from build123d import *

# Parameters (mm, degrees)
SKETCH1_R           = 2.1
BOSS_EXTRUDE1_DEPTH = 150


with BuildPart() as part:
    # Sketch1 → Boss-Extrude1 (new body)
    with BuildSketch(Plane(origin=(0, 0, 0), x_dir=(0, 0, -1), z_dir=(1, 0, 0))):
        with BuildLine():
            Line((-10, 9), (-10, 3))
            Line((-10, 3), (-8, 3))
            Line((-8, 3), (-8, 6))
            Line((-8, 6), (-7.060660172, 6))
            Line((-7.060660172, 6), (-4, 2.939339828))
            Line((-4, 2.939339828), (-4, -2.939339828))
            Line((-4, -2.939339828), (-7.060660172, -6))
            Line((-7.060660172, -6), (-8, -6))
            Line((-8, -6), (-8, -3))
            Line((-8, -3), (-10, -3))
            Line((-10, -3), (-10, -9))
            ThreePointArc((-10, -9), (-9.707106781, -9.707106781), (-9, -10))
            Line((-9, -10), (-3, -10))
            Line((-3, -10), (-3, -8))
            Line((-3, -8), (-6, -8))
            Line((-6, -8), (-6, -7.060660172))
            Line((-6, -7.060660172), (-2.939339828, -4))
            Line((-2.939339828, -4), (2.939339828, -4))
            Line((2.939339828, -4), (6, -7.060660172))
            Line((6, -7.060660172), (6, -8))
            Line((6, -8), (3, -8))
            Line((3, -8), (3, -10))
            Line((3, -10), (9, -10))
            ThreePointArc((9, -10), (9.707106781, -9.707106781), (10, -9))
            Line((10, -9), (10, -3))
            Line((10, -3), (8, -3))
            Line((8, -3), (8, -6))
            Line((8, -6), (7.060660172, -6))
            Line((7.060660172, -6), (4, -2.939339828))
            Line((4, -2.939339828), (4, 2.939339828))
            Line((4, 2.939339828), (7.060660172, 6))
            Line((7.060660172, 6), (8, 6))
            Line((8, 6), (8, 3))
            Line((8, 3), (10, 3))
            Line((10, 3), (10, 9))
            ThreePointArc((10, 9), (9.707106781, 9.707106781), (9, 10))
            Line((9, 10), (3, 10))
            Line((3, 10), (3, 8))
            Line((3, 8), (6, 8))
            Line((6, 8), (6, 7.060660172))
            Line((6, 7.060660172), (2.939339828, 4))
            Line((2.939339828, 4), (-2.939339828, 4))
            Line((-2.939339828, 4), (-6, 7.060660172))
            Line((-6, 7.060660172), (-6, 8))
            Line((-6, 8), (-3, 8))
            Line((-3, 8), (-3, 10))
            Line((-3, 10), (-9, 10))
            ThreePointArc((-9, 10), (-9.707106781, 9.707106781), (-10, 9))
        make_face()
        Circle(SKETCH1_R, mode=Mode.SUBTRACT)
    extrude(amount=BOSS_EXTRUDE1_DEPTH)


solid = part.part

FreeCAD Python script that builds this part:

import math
import FreeCAD as App
import Part
import Sketcher

doc = App.newDocument("Part")
body = doc.addObject("PartDesign::Body", "Body")

# Sketch on YZ plane
sketch1 = doc.addObject("Sketcher::SketchObject", "Sketch")
body.addObject(sketch1)
sketch1.AttachmentSupport = (doc.YZ_Plane, [""])
sketch1.MapMode = "FlatFace"
sketch1.addGeometry([
    Part.LineSegment(App.Vector(9, 10, 0), App.Vector(3, 10, 0)),  # 0
    Part.LineSegment(App.Vector(3, 10, 0), App.Vector(3, 8, 0)),  # 1
    Part.LineSegment(App.Vector(3, 8, 0), App.Vector(6, 8, 0)),  # 2
    Part.LineSegment(App.Vector(6, 8, 0), App.Vector(6, 7.1, 0)),  # 3
    Part.LineSegment(App.Vector(6, 7.1, 0), App.Vector(2.9, 4, 0)),  # 4
    Part.LineSegment(App.Vector(2.9, 4, 0), App.Vector(-2.9, 4, 0)),  # 5
    Part.LineSegment(App.Vector(-2.9, 4, 0), App.Vector(-6, 7.1, 0)),  # 6
    Part.LineSegment(App.Vector(-6, 7.1, 0), App.Vector(-6, 8, 0)),  # 7
    Part.LineSegment(App.Vector(-6, 8, 0), App.Vector(-3, 8, 0)),  # 8
    Part.LineSegment(App.Vector(-3, 8, 0), App.Vector(-3, 10, 0)),  # 9
    Part.LineSegment(App.Vector(-3, 10, 0), App.Vector(-9, 10, 0)),  # 10
    Part.ArcOfCircle(Part.Circle(App.Vector(-9, 9, 0), App.Vector(0, 0, 1), 1), math.radians(90), math.radians(180)),  # 11
    Part.LineSegment(App.Vector(-10, 9, 0), App.Vector(-10, 3, 0)),  # 12
    Part.LineSegment(App.Vector(-10, 3, 0), App.Vector(-8, 3, 0)),  # 13
    Part.LineSegment(App.Vector(-8, 3, 0), App.Vector(-8, 6, 0)),  # 14
    Part.LineSegment(App.Vector(-8, 6, 0), App.Vector(-7.1, 6, 0)),  # 15
    Part.LineSegment(App.Vector(-7.1, 6, 0), App.Vector(-4, 2.9, 0)),  # 16
    Part.LineSegment(App.Vector(-4, 2.9, 0), App.Vector(-4, -2.9, 0)),  # 17
    Part.LineSegment(App.Vector(-4, -2.9, 0), App.Vector(-7.1, -6, 0)),  # 18
    Part.LineSegment(App.Vector(-7.1, -6, 0), App.Vector(-8, -6, 0)),  # 19
    Part.LineSegment(App.Vector(-8, -6, 0), App.Vector(-8, -3, 0)),  # 20
    Part.LineSegment(App.Vector(-8, -3, 0), App.Vector(-10, -3, 0)),  # 21
    Part.LineSegment(App.Vector(-10, -3, 0), App.Vector(-10, -9, 0)),  # 22
    Part.ArcOfCircle(Part.Circle(App.Vector(-9, -9, 0), App.Vector(0, 0, 1), 1), math.radians(-180), math.radians(-90)),  # 23
    Part.LineSegment(App.Vector(-9, -10, 0), App.Vector(-3, -10, 0)),  # 24
    Part.LineSegment(App.Vector(-3, -10, 0), App.Vector(-3, -8, 0)),  # 25
    Part.LineSegment(App.Vector(-3, -8, 0), App.Vector(-6, -8, 0)),  # 26
    Part.LineSegment(App.Vector(-6, -8, 0), App.Vector(-6, -7.1, 0)),  # 27
    Part.LineSegment(App.Vector(-6, -7.1, 0), App.Vector(-2.9, -4, 0)),  # 28
    Part.LineSegment(App.Vector(-2.9, -4, 0), App.Vector(2.9, -4, 0)),  # 29
    Part.LineSegment(App.Vector(2.9, -4, 0), App.Vector(6, -7.1, 0)),  # 30
    Part.LineSegment(App.Vector(6, -7.1, 0), App.Vector(6, -8, 0)),  # 31
    Part.LineSegment(App.Vector(6, -8, 0), App.Vector(3, -8, 0)),  # 32
    Part.LineSegment(App.Vector(3, -8, 0), App.Vector(3, -10, 0)),  # 33
    Part.LineSegment(App.Vector(3, -10, 0), App.Vector(9, -10, 0)),  # 34
    Part.ArcOfCircle(Part.Circle(App.Vector(9, -9, 0), App.Vector(0, 0, 1), 1), math.radians(-90), math.radians(0)),  # 35
    Part.LineSegment(App.Vector(10, -9, 0), App.Vector(10, -3, 0)),  # 36
    Part.LineSegment(App.Vector(10, -3, 0), App.Vector(8, -3, 0)),  # 37
    Part.LineSegment(App.Vector(8, -3, 0), App.Vector(8, -6, 0)),  # 38
    Part.LineSegment(App.Vector(8, -6, 0), App.Vector(7.1, -6, 0)),  # 39
    Part.LineSegment(App.Vector(7.1, -6, 0), App.Vector(4, -2.9, 0)),  # 40
    Part.LineSegment(App.Vector(4, -2.9, 0), App.Vector(4, 2.9, 0)),  # 41
    Part.LineSegment(App.Vector(4, 2.9, 0), App.Vector(7.1, 6, 0)),  # 42
    Part.LineSegment(App.Vector(7.1, 6, 0), App.Vector(8, 6, 0)),  # 43
    Part.LineSegment(App.Vector(8, 6, 0), App.Vector(8, 3, 0)),  # 44
    Part.LineSegment(App.Vector(8, 3, 0), App.Vector(10, 3, 0)),  # 45
    Part.LineSegment(App.Vector(10, 3, 0), App.Vector(10, 9, 0)),  # 46
    Part.ArcOfCircle(Part.Circle(App.Vector(9, 9, 0), App.Vector(0, 0, 1), 1), math.radians(0), math.radians(90)),  # 47
    Part.Circle(App.Vector(0, 0, 0), App.Vector(0, 0, 1), 2.1),  # 48
], False)
sketch1.addConstraint([
    Sketcher.Constraint("Coincident", 0, 2, 1, 1),
    Sketcher.Constraint("Coincident", 1, 2, 2, 1),
    Sketcher.Constraint("Coincident", 2, 2, 3, 1),
    Sketcher.Constraint("Coincident", 3, 2, 4, 1),
    Sketcher.Constraint("Coincident", 4, 2, 5, 1),
    Sketcher.Constraint("Coincident", 5, 2, 6, 1),
    Sketcher.Constraint("Coincident", 6, 2, 7, 1),
    Sketcher.Constraint("Coincident", 7, 2, 8, 1),
    Sketcher.Constraint("Coincident", 8, 2, 9, 1),
    Sketcher.Constraint("Coincident", 9, 2, 10, 1),
    Sketcher.Constraint("Tangent", 10, 2, 11, 1),
    Sketcher.Constraint("Tangent", 11, 2, 12, 1),
    Sketcher.Constraint("Coincident", 12, 2, 13, 1),
    Sketcher.Constraint("Coincident", 13, 2, 14, 1),
    Sketcher.Constraint("Coincident", 14, 2, 15, 1),
    Sketcher.Constraint("Coincident", 15, 2, 16, 1),
    Sketcher.Constraint("Coincident", 16, 2, 17, 1),
    Sketcher.Constraint("Coincident", 17, 2, 18, 1),
    Sketcher.Constraint("Coincident", 18, 2, 19, 1),
    Sketcher.Constraint("Coincident", 19, 2, 20, 1),
    Sketcher.Constraint("Coincident", 20, 2, 21, 1),
    Sketcher.Constraint("Coincident", 21, 2, 22, 1),
    Sketcher.Constraint("Tangent", 22, 2, 23, 1),
    Sketcher.Constraint("Tangent", 23, 2, 24, 1),
    Sketcher.Constraint("Coincident", 24, 2, 25, 1),
    Sketcher.Constraint("Coincident", 25, 2, 26, 1),
    Sketcher.Constraint("Coincident", 26, 2, 27, 1),
    Sketcher.Constraint("Coincident", 27, 2, 28, 1),
    Sketcher.Constraint("Coincident", 28, 2, 29, 1),
    Sketcher.Constraint("Coincident", 29, 2, 30, 1),
    Sketcher.Constraint("Coincident", 30, 2, 31, 1),
    Sketcher.Constraint("Coincident", 31, 2, 32, 1),
    Sketcher.Constraint("Coincident", 32, 2, 33, 1),
    Sketcher.Constraint("Coincident", 33, 2, 34, 1),
    Sketcher.Constraint("Tangent", 34, 2, 35, 1),
    Sketcher.Constraint("Tangent", 35, 2, 36, 1),
    Sketcher.Constraint("Coincident", 36, 2, 37, 1),
    Sketcher.Constraint("Coincident", 37, 2, 38, 1),
    Sketcher.Constraint("Coincident", 38, 2, 39, 1),
    Sketcher.Constraint("Coincident", 39, 2, 40, 1),
    Sketcher.Constraint("Coincident", 40, 2, 41, 1),
    Sketcher.Constraint("Coincident", 41, 2, 42, 1),
    Sketcher.Constraint("Coincident", 42, 2, 43, 1),
    Sketcher.Constraint("Coincident", 43, 2, 44, 1),
    Sketcher.Constraint("Coincident", 44, 2, 45, 1),
    Sketcher.Constraint("Coincident", 45, 2, 46, 1),
    Sketcher.Constraint("Tangent", 46, 2, 47, 1),
    Sketcher.Constraint("Tangent", 47, 2, 0, 1),
    Sketcher.Constraint("Horizontal", 0),
    Sketcher.Constraint("Vertical", 1),
    Sketcher.Constraint("Horizontal", 2),
    Sketcher.Constraint("Vertical", 3),
    Sketcher.Constraint("Horizontal", 5),
    Sketcher.Constraint("Vertical", 7),
    Sketcher.Constraint("Horizontal", 8),
    Sketcher.Constraint("Vertical", 9),
    Sketcher.Constraint("Horizontal", 10),
    Sketcher.Constraint("Vertical", 12),
    Sketcher.Constraint("Horizontal", 13),
    Sketcher.Constraint("Vertical", 14),
    Sketcher.Constraint("Horizontal", 15),
    Sketcher.Constraint("Vertical", 17),
    Sketcher.Constraint("Horizontal", 19),
    Sketcher.Constraint("Vertical", 20),
    Sketcher.Constraint("Horizontal", 21),
    Sketcher.Constraint("Vertical", 22),
    Sketcher.Constraint("Horizontal", 24),
    Sketcher.Constraint("Vertical", 25),
    Sketcher.Constraint("Horizontal", 26),
    Sketcher.Constraint("Vertical", 27),
    Sketcher.Constraint("Horizontal", 29),
    Sketcher.Constraint("Vertical", 31),
    Sketcher.Constraint("Horizontal", 32),
    Sketcher.Constraint("Vertical", 33),
    Sketcher.Constraint("Horizontal", 34),
    Sketcher.Constraint("Vertical", 36),
    Sketcher.Constraint("Horizontal", 37),
    Sketcher.Constraint("Vertical", 38),
    Sketcher.Constraint("Horizontal", 39),
    Sketcher.Constraint("Vertical", 41),
    Sketcher.Constraint("Horizontal", 43),
    Sketcher.Constraint("Vertical", 44),
    Sketcher.Constraint("Horizontal", 45),
    Sketcher.Constraint("Vertical", 46),
    Sketcher.Constraint("Coincident", 48, 3, -1, 1),
    Sketcher.Constraint("Equal", 11, 23),
    Sketcher.Constraint("Equal", 23, 35),
    Sketcher.Constraint("Equal", 35, 47),
    Sketcher.Constraint("Symmetric", 11, 3, 35, 3, -1, 1),
    Sketcher.Constraint("Symmetric", 23, 3, 47, 3, -1, 1),
    Sketcher.Constraint("Symmetric", 1, 2, 25, 2, -1, 1),
    Sketcher.Constraint("Symmetric", 3, 2, 27, 2, -1, 1),
    Sketcher.Constraint("Symmetric", 4, 2, 28, 2, -1, 1),
    Sketcher.Constraint("Symmetric", 6, 2, 30, 2, -1, 1),
    Sketcher.Constraint("Symmetric", 8, 2, 32, 2, -1, 1),
    Sketcher.Constraint("Symmetric", 13, 2, 37, 2, -1, 1),
    Sketcher.Constraint("Symmetric", 15, 2, 39, 2, -1, 1),
    Sketcher.Constraint("Symmetric", 16, 2, 40, 2, -1, 1),
    Sketcher.Constraint("Symmetric", 18, 2, 42, 2, -1, 1),
    Sketcher.Constraint("Symmetric", 20, 2, 44, 2, -1, 1),
    Sketcher.Constraint("Symmetric", 23, 3, 35, 3, -2),
    Sketcher.Constraint("Symmetric", 3, 2, 6, 2, -2),
    Sketcher.Constraint("Symmetric", 1, 2, 8, 2, -2),
    Sketcher.Constraint("Symmetric", 20, 2, 37, 2, -2),
    Sketcher.Constraint("Symmetric", 18, 2, 39, 2, -2),
    Sketcher.Constraint("Perpendicular", 4, 6),
    Sketcher.Constraint("Parallel", 6, 16),
    Sketcher.Constraint("Perpendicular", 16, 18),
    Sketcher.Constraint("Perpendicular", 28, 30),
    Sketcher.Constraint("Perpendicular", 40, 42),
    Sketcher.Constraint("Horizontal", 17, 2, 40, 2),
    Sketcher.Constraint("Equal", 45, 1),
    Sketcher.Constraint("Equal", 43, 3),
    Sketcher.Constraint("Equal", 34, 12),
    Sketcher.Constraint("Equal", 32, 14),
    Sketcher.Constraint("Equal", 29, 17),
    Sketcher.Constraint("Equal", 6, 16),
    Sketcher.Constraint("Radius", 11, 1.0),
    Sketcher.Constraint("Diameter", 48, 4.2),
    Sketcher.Constraint("DistanceX", 0, 2, 0, 1, 6.0),
    Sketcher.Constraint("DistanceX", 2, 1, 2, 2, 3.0),
    Sketcher.Constraint("DistanceX", 13, 1, 13, 2, 2.0),
    Sketcher.Constraint("DistanceX", 11, 3, -1, 1, 9.0),
    Sketcher.Constraint("DistanceY", -1, 1, 4, 2, 4.0),
    Sketcher.Constraint("DistanceX", 5, 2, 5, 1, 5.87868),
])
pad1 = doc.addObject("PartDesign::Pad", "Pad")
body.addObject(pad1)
pad1.Profile = sketch1
pad1.Length = 150

doc.recompute()
